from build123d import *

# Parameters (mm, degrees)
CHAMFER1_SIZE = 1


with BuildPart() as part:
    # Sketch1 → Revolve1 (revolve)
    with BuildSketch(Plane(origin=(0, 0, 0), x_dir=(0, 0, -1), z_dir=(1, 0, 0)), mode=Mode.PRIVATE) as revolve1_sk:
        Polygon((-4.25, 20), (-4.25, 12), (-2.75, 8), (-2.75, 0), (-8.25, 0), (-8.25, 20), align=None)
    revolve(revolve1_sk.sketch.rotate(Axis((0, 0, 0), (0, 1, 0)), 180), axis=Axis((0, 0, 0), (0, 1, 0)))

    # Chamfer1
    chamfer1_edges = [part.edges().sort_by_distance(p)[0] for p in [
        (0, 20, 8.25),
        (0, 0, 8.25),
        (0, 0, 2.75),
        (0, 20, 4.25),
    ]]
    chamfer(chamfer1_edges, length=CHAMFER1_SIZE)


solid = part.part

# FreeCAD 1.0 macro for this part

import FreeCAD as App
import Part
import Sketcher


def edges_at(feature, points):
    """Names of the edges that pass closest to the given points."""
    edges = feature.Shape.Edges
    near = lambda p: min(range(len(edges)), key=lambda i: edges[i].distToShape(Part.Vertex(*p))[0])
    return sorted({f"Edge{near(p) + 1}" for p in points})

doc = App.newDocument("Part")
body = doc.addObject("PartDesign::Body", "Body")

sketch1 = doc.addObject("Sketcher::SketchObject", "Sketch")
body.addObject(sketch1)
sketch1.AttachmentSupport = (doc.YZ_Plane, [""])
sketch1.MapMode = "FlatFace"
sketch1.addGeometry([
    Part.LineSegment(App.Vector(12, 4.2, 0), App.Vector(20, 4.2, 0)),
    Part.LineSegment(App.Vector(20, 4.2, 0), App.Vector(20, 8.2, 0)),
    Part.LineSegment(App.Vector(20, 8.2, 0), App.Vector(0, 8.2, 0)),
    Part.LineSegment(App.Vector(0, 8.2, 0), App.Vector(0, 2.8, 0)),
    Part.LineSegment(App.Vector(0, 2.8, 0), App.Vector(8, 2.8, 0)),
    Part.LineSegment(App.Vector(8, 2.8, 0), App.Vector(12, 4.2, 0)),
], False)
sketch1.addConstraint([
    Sketcher.Constraint("Coincident", 0, 2, 1, 1),
    Sketcher.Constraint("Coincident", 1, 2, 2, 1),
    Sketcher.Constraint("Coincident", 2, 2, 3, 1),
    Sketcher.Constraint("Coincident", 3, 2, 4, 1),
    Sketcher.Constraint("Coincident", 4, 2, 5, 1),
    Sketcher.Constraint("Coincident", 5, 2, 0, 1),
    Sketcher.Constraint("Horizontal", 0),
    Sketcher.Constraint("Vertical", 1),
    Sketcher.Constraint("Horizontal", 2),
    Sketcher.Constraint("Vertical", 3),
    Sketcher.Constraint("Horizontal", 4),
    Sketcher.Constraint("PointOnObject", 2, 2, -2),
    Sketcher.Constraint("Equal", 0, 4),
    Sketcher.Constraint("DistanceX", 0, 1, 0, 2, 8.0),
    Sketcher.Constraint("DistanceX", 2, 2, 2, 1, 20.0),
    Sketcher.Constraint("DistanceY", 1, 1, 1, 2, 4.0),
    Sketcher.Constraint("DistanceY", 3, 2, 3, 1, 5.5),
    Sketcher.Constraint("DistanceY", -1, 1, 0, 2, 4.25),
])
revolution = doc.addObject("PartDesign::Revolution", "Revolution")
body.addObject(revolution)
revolution.Profile = sketch1
revolution.ReferenceAxis = (sketch1, ["H_Axis"])
revolution.Angle = 360
doc.recompute()

chamfer = doc.addObject("PartDesign::Chamfer", "Chamfer")
body.addObject(chamfer)
chamfer.Base = (revolution, edges_at(revolution, [
    (0, 20, 8.25),
    (0, 0, 8.25),
    (0, 0, 2.75),
    (0, 20, 4.25),
]))
chamfer.Size = 1

doc.recompute()
